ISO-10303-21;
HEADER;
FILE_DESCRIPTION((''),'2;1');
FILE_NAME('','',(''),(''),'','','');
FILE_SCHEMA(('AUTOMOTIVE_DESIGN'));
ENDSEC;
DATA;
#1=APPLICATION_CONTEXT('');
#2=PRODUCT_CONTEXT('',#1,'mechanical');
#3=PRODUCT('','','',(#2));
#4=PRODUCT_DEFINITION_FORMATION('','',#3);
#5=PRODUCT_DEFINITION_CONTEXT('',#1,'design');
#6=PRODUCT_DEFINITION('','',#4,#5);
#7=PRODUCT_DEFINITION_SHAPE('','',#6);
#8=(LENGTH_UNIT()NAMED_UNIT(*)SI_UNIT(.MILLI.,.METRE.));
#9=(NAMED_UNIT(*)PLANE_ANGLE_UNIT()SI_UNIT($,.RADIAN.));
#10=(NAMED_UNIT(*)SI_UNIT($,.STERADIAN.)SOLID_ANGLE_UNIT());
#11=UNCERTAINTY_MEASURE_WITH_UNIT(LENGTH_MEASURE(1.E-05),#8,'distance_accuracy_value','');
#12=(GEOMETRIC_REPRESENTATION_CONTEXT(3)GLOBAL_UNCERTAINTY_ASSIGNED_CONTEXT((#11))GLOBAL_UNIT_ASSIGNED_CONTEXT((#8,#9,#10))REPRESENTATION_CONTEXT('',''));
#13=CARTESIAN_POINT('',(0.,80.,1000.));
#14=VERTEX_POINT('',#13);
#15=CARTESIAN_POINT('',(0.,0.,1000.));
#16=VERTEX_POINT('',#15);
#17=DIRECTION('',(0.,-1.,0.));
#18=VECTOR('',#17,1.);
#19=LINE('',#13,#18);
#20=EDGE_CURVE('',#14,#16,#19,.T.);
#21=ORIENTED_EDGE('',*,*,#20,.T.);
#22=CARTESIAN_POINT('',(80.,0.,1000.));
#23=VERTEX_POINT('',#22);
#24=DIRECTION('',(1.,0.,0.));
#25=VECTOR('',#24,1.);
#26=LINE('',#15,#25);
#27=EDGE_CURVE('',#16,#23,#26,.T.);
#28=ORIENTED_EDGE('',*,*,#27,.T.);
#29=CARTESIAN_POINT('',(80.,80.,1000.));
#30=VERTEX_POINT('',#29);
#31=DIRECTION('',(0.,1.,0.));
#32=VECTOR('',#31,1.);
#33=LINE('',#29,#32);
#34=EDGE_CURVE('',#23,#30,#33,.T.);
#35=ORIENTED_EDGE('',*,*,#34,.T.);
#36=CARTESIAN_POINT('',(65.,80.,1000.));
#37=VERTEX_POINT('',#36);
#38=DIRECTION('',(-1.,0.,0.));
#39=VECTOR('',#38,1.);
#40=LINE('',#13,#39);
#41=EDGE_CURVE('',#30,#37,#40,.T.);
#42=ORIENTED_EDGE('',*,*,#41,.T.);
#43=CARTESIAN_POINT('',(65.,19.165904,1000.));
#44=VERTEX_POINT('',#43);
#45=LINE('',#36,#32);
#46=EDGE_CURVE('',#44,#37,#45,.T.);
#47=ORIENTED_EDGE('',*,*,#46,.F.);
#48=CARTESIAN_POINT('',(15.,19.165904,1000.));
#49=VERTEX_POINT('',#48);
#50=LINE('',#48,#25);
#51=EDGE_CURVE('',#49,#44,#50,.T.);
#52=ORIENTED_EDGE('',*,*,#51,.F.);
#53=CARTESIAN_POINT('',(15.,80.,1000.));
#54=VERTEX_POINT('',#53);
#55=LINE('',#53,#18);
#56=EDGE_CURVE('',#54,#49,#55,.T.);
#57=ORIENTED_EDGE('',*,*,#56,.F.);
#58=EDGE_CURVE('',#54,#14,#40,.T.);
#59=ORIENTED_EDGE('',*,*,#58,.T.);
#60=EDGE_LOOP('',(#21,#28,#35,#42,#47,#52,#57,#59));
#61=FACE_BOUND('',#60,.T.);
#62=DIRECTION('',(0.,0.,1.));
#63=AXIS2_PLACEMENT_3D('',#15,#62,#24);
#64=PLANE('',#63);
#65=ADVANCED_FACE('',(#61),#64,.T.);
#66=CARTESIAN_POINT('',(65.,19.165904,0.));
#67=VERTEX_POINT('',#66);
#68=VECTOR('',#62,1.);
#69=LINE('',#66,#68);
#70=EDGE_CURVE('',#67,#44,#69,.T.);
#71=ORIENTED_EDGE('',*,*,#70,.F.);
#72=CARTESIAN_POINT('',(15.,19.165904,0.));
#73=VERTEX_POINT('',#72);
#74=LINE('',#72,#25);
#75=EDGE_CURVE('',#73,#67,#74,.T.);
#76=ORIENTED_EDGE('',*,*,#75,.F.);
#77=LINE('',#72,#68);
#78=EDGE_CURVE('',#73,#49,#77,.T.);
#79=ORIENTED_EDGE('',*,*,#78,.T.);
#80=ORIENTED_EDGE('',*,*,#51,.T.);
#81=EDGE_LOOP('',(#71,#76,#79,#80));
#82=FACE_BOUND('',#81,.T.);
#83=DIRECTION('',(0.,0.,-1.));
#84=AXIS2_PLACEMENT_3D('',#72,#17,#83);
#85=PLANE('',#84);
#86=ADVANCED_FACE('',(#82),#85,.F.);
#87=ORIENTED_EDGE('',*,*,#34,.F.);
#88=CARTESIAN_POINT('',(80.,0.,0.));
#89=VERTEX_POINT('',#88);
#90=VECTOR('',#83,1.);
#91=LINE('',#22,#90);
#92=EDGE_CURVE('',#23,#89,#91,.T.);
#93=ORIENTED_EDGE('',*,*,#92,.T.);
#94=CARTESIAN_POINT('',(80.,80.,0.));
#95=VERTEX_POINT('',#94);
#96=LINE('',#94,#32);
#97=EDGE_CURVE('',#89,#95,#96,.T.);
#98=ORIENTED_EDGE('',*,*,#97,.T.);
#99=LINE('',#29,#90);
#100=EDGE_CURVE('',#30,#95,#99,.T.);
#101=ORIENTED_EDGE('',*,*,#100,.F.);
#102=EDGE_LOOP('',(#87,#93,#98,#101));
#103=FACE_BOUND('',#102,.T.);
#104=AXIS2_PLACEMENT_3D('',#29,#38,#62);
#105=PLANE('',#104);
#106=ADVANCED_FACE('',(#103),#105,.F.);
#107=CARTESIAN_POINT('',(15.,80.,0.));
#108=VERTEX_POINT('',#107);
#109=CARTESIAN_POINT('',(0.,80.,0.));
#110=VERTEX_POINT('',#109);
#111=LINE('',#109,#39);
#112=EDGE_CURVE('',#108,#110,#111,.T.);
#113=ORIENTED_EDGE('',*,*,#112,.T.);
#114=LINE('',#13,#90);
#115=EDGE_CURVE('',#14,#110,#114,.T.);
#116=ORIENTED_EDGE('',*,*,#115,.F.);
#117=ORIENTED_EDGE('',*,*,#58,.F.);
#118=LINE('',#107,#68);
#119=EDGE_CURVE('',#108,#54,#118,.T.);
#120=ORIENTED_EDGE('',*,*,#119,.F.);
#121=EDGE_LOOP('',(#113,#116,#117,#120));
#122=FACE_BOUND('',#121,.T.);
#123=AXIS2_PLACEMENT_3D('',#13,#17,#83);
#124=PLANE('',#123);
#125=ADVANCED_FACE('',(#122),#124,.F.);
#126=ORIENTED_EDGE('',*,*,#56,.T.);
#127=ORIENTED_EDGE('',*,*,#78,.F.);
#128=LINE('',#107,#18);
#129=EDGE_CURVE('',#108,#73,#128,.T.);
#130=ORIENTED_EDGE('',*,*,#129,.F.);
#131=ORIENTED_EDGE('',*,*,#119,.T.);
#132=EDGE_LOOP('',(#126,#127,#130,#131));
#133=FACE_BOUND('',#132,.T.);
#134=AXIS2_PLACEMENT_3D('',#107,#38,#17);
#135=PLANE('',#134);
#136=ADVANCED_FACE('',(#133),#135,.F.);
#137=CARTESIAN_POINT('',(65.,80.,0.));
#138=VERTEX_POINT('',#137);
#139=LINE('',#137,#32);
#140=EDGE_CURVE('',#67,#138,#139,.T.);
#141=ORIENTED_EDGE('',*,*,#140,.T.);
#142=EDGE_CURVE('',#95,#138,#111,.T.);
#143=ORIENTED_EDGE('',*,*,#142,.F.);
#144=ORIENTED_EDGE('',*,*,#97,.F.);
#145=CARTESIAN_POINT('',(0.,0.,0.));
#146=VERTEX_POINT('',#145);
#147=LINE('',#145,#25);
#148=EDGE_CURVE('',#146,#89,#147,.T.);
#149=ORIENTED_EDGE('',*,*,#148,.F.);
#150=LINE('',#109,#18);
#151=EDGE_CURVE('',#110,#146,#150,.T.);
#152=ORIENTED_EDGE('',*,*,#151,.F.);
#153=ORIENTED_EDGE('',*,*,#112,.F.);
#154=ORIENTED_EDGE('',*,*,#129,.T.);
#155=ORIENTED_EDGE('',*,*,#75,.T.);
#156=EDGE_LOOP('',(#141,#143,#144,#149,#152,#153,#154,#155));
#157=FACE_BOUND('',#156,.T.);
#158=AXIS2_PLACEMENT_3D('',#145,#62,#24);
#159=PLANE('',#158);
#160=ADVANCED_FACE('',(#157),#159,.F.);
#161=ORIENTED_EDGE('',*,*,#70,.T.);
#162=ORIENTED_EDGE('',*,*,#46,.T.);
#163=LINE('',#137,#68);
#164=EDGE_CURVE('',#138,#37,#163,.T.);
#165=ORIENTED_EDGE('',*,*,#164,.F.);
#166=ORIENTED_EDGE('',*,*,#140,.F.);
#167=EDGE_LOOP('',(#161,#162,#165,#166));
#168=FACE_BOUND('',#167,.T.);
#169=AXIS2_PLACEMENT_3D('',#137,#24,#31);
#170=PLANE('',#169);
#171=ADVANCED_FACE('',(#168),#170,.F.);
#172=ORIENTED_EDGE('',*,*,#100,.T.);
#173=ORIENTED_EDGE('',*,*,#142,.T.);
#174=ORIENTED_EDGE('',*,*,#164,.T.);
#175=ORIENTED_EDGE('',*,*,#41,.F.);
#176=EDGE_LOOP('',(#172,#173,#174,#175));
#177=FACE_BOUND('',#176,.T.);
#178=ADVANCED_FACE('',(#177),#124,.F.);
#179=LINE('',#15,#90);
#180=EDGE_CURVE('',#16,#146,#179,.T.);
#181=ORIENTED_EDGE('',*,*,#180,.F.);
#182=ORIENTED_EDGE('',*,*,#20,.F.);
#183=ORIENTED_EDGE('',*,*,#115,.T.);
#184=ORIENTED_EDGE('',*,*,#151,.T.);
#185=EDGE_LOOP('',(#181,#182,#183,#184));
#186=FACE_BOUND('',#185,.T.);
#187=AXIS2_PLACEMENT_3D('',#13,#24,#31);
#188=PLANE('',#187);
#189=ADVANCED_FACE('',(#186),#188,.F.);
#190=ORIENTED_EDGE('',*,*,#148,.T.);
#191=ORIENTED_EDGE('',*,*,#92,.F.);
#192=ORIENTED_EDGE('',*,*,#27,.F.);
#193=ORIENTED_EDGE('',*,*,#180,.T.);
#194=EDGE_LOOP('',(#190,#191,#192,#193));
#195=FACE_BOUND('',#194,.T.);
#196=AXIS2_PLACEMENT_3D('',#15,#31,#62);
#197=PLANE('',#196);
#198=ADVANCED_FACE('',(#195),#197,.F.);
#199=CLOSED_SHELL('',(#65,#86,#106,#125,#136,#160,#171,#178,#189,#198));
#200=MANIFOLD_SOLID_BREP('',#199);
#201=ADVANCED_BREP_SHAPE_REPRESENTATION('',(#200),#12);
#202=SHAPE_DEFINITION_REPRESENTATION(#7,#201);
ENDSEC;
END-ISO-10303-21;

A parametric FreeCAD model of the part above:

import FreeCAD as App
import Part
import Sketcher

V = App.Vector
Q = App.Units.Quantity

doc = App.newDocument("Part")
body = doc.addObject("PartDesign::Body", "Body")

sketch1 = body.newObject("Sketcher::SketchObject", "Sketch")
sketch1.AttachmentSupport = (doc.getObject("XY_Plane"), [""])
sketch1.MapMode = "FlatFace"
sketch1.addGeometry([
    Part.LineSegment(V(0, 80, 0), V(0, 0, 0)),
    Part.LineSegment(V(0, 0, 0), V(80, 0, 0)),
    Part.LineSegment(V(80, 0, 0), V(80, 80, 0)),
    Part.LineSegment(V(80, 80, 0), V(0, 80, 0)),
], False)
sketch1.addConstraint([
    Sketcher.Constraint("Coincident", 0, 2, 1, 1),
    Sketcher.Constraint("Coincident", 1, 2, 2, 1),
    Sketcher.Constraint("Coincident", 2, 2, 3, 1),
    Sketcher.Constraint("Coincident", 3, 2, 0, 1),
    Sketcher.Constraint("Vertical", 0),
    Sketcher.Constraint("Horizontal", 1),
    Sketcher.Constraint("Vertical", 2),
    Sketcher.Constraint("Horizontal", 3),
    Sketcher.Constraint("Coincident", 0, 2, -1, 1),
    Sketcher.Constraint("Equal", 3, 0),
    Sketcher.Constraint("DistanceX", 1, 1, 1, 2, Q("80 mm")),
])
pad1 = body.newObject("PartDesign::Pad", "Pad")
pad1.Profile = sketch1
pad1.Length = 1000

sketch2 = body.newObject("Sketcher::SketchObject", "Sketch001")
sketch2.AttachmentSupport = (doc.getObject("XY_Plane"), [""])
sketch2.MapMode = "FlatFace"
sketch2.AttachmentOffset = App.Placement(V(0, 0, 1000), App.Rotation())
sketch2.addGeometry([
    Part.LineSegment(V(15, 80, 0), V(15, 19.165904, 0)),
    Part.LineSegment(V(15, 19.165904, 0), V(65, 19.165904, 0)),
    Part.LineSegment(V(65, 19.165904, 0), V(65, 80, 0)),
    Part.LineSegment(V(65, 80, 0), V(15, 80, 0)),
], False)
sketch2.addConstraint([
    Sketcher.Constraint("Coincident", 0, 2, 1, 1),
    Sketcher.Constraint("Coincident", 1, 2, 2, 1),
    Sketcher.Constraint("Coincident", 2, 2, 3, 1),
    Sketcher.Constraint("Coincident", 3, 2, 0, 1),
    Sketcher.Constraint("Vertical", 0),
    Sketcher.Constraint("Horizontal", 1),
    Sketcher.Constraint("Vertical", 2),
    Sketcher.Constraint("Horizontal", 3),
    Sketcher.Constraint("DistanceX", 1, 1, 1, 2, Q("50 mm")),
    Sketcher.Constraint("DistanceX", -1, 1, 0, 2, Q("15 mm")),
    Sketcher.Constraint("DistanceY", -1, 1, 2, 2, Q("80 mm")),
    Sketcher.Constraint("DistanceY", 0, 2, 0, 1, Q("60.834096 mm")),
])
pocket1 = body.newObject("PartDesign::Pocket", "Pocket")
pocket1.Profile = sketch2
pocket1.Length = 1000

doc.recompute()
